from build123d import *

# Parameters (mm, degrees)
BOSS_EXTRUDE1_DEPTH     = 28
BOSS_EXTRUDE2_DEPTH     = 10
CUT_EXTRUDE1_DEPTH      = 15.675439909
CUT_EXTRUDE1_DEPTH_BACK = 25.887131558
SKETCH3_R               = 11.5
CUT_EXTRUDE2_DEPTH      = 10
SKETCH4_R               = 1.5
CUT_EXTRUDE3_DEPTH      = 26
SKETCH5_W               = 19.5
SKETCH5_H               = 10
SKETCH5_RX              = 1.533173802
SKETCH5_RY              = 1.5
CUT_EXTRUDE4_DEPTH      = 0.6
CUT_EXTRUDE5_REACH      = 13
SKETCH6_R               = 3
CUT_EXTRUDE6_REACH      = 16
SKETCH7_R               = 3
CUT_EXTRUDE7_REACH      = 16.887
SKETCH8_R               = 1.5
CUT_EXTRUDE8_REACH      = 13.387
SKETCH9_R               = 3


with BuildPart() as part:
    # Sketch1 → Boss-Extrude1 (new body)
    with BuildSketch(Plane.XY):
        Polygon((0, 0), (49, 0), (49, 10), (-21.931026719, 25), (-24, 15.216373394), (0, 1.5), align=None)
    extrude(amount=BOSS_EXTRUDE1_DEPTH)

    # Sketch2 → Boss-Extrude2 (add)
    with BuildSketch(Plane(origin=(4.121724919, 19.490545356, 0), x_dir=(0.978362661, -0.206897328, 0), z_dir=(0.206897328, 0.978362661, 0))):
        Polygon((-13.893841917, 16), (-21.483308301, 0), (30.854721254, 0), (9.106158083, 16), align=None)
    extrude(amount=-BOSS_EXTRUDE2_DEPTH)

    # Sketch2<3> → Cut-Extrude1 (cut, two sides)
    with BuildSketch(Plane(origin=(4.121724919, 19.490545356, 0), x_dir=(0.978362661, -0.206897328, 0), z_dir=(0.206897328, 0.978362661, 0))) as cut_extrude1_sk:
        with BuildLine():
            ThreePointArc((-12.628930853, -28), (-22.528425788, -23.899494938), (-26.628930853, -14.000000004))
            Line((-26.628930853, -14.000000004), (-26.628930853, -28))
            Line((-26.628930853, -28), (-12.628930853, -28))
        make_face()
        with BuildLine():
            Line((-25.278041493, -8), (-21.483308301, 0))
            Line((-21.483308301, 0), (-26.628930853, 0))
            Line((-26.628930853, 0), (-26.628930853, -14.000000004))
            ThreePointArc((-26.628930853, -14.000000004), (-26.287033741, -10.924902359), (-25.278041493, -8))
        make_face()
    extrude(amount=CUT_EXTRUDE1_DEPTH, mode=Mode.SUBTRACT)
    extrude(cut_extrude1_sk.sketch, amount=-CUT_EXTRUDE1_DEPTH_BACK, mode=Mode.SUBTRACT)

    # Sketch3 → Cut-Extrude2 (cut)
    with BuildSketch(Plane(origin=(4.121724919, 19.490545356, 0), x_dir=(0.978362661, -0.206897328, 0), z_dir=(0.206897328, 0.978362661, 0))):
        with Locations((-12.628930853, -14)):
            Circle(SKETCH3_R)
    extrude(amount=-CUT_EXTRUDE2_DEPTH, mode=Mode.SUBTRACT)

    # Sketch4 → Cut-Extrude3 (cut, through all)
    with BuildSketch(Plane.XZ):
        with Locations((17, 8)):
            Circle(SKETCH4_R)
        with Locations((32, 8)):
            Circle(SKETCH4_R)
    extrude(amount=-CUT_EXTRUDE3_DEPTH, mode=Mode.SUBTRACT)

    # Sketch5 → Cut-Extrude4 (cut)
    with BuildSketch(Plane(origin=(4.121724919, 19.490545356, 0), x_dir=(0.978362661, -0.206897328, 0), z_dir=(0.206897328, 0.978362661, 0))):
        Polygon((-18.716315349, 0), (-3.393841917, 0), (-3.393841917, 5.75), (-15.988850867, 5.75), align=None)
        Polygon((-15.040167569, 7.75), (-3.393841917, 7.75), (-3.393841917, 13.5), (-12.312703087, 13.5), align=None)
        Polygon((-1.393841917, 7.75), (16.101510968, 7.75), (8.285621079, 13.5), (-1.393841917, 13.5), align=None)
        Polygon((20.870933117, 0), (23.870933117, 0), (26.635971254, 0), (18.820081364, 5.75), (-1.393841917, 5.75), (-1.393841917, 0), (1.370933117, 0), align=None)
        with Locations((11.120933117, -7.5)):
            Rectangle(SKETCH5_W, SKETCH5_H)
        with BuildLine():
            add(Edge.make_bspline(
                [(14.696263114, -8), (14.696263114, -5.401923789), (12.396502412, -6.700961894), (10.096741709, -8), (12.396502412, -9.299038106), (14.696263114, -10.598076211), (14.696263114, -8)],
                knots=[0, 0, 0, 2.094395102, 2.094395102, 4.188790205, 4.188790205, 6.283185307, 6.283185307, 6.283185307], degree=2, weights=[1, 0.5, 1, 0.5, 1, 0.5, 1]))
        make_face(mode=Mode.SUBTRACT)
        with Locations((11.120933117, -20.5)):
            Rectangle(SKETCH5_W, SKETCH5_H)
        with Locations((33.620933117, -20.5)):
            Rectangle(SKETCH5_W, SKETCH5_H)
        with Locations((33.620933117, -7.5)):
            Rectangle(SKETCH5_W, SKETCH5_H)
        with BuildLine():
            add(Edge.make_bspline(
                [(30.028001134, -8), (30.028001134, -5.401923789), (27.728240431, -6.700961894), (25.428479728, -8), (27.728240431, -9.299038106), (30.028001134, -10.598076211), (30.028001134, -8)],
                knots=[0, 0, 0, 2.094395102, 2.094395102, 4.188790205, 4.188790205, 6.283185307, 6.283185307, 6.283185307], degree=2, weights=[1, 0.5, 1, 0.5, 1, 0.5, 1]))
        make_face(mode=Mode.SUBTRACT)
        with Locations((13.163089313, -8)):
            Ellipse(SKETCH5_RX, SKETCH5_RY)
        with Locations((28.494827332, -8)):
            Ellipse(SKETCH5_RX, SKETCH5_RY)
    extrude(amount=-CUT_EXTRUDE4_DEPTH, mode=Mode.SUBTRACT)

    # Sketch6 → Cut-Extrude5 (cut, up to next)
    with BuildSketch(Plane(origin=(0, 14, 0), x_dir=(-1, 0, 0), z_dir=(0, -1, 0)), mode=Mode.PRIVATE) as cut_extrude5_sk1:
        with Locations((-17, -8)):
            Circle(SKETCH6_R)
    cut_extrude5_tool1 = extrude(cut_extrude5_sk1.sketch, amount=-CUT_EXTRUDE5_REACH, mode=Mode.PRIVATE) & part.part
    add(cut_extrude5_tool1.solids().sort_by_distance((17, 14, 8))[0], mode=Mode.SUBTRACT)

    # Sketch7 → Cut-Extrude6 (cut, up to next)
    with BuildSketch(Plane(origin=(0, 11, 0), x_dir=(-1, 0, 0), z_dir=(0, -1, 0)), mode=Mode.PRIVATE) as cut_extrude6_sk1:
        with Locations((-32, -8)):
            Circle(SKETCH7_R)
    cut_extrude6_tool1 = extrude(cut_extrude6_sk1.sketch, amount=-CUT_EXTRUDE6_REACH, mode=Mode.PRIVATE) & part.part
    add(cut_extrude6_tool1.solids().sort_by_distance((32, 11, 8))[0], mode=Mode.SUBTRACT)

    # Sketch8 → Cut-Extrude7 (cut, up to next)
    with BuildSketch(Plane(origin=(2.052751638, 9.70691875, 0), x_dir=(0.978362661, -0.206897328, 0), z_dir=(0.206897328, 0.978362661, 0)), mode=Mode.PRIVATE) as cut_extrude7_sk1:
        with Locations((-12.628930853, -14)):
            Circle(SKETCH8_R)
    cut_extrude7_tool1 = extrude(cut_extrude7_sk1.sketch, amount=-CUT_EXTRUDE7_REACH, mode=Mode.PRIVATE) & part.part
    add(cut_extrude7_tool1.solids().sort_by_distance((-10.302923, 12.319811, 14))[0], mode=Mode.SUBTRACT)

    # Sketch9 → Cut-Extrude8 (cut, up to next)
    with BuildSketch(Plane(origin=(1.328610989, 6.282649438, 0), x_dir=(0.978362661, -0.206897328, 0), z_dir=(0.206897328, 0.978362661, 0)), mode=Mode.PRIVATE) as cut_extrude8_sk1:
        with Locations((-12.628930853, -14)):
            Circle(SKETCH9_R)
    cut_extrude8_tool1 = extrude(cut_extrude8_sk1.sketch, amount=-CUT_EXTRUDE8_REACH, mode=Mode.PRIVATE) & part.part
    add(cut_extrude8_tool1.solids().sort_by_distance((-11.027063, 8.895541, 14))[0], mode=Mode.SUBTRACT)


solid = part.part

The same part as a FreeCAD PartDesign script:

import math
import FreeCAD as App
import Part
import Sketcher
Q = App.Units.Quantity


def add_polygon(sketch, points):
    """Adds a closed chain of lines whose ends are joined by coincident constraints."""
    first, n = sketch.GeometryCount, len(points)
    for a, b in zip(points, points[1:] + points[:1]):
        sketch.addGeometry(Part.LineSegment(App.Vector(*a, 0), App.Vector(*b, 0)), False)
    for i in range(n):
        sketch.addConstraint(Sketcher.Constraint("Coincident", first + i, 2, first + (i + 1) % n, 1))

doc = App.newDocument("Part")
body = doc.addObject("PartDesign::Body", "Body")

# Sketch on XY plane
sketch1 = body.newObject("Sketcher::SketchObject", "Sketch")
sketch1.AttachmentSupport = (doc.getObject("XY_Plane"), [""])
sketch1.MapMode = "FlatFace"
add_polygon(sketch1, [(0, 0), (49, 0), (49, 10), (-21.9, 25), (-24, 15.2), (0, 1.5)])  # lines 0-5
sketch1.addConstraint([
    Sketcher.Constraint("Horizontal", 0),
    Sketcher.Constraint("Vertical", 1),
    Sketcher.Constraint("Vertical", 5),
    Sketcher.Constraint("Coincident", 5, 2, -1, 1),
    Sketcher.Constraint("Perpendicular", 2, 3),
    Sketcher.Constraint("DistanceX", 0, 1, 0, 2, Q("49 mm")),
    Sketcher.Constraint("DistanceY", 1, 1, 1, 2, Q("10 mm")),
    Sketcher.Constraint("Distance", 3, Q("10 mm")),
    Sketcher.Constraint("DistanceY", 5, 2, 5, 1, Q("1.5 mm")),
    Sketcher.Constraint("DistanceY", -1, 1, 2, 2, Q("25 mm")),
    Sketcher.Constraint("DistanceX", 3, 2, -1, 1, Q("24 mm")),
])
pad1 = body.newObject("PartDesign::Pad", "Pad")
pad1.Profile = sketch1
pad1.Length = 28

# Sketch on an angled plane
sketch2 = body.newObject("Sketcher::SketchObject", "Sketch001")
sketch2.Placement = App.Placement(App.Vector(4.121725, 19.490545, 0), App.Rotation(App.Vector(0.978362661, -0.206897328, 0), App.Vector(0, 0, -1.000000001), App.Vector(0.206897328, 0.978362661, 0), "ZXY"))
add_polygon(sketch2, [(-14, 16), (-21, 0), (31, 0), (9, 16)])  # lines 0-3
sketch2.addConstraint([
    Sketcher.Constraint("Horizontal", 1),
    Sketcher.Constraint("Horizontal", 3),
    Sketcher.Constraint("PointOnObject", 0, 2, -1),
    Sketcher.Constraint("DistanceX", 3, 2, 3, 1, Q("23 mm")),
    Sketcher.Constraint("Distance", 2, Q("27 mm")),
    Sketcher.Constraint("DistanceY", -1, 1, 2, 2, Q("16 mm")),
    Sketcher.Constraint("DistanceX", 1, 1, 1, 2, Q("52.33803 mm")),
    Sketcher.Constraint("DistanceX", 0, 2, -1, 1, Q("21.483308 mm")),
])
pad2 = body.newObject("PartDesign::Pad", "Pad001")
pad2.Profile = sketch2
pad2.Length = 10
pad2.Reversed = True

# Sketch on an angled plane
sketch3 = body.newObject("Sketcher::SketchObject", "Sketch002")
sketch3.Placement = App.Placement(App.Vector(4.121725, 19.490545, 0), App.Rotation(App.Vector(0.978362661, -0.206897328, 0), App.Vector(0, 0, -1.000000001), App.Vector(0.206897328, 0.978362661, 0), "ZXY"))
sketch3.addGeometry([
    Part.ArcOfCircle(Part.Circle(App.Vector(-13, -14, 0), App.Vector(0, 0, 1), 14), math.radians(-180), math.radians(-90)),  # 0
    Part.LineSegment(App.Vector(-27, -14, 0), App.Vector(-27, -28, 0)),  # 1
    Part.LineSegment(App.Vector(-27, -28, 0), App.Vector(-13, -28, 0)),  # 2
    Part.LineSegment(App.Vector(-25, -8, 0), App.Vector(-21, 0, 0)),  # 3
    Part.LineSegment(App.Vector(-21, 0, 0), App.Vector(-27, 0, 0)),  # 4
    Part.LineSegment(App.Vector(-27, 0, 0), App.Vector(-27, -14, 0)),  # 5
    Part.ArcOfCircle(Part.Circle(App.Vector(-13, -14, 0), App.Vector(0, 0, 1), 14), math.radians(155), math.radians(180)),  # 6
], False)
sketch3.addConstraint([
    Sketcher.Constraint("Tangent", 0, 1, 1, 1),
    Sketcher.Constraint("Coincident", 1, 2, 2, 1),
    Sketcher.Constraint("Tangent", 2, 2, 0, 2),
    Sketcher.Constraint("Coincident", 3, 2, 4, 1),
    Sketcher.Constraint("Coincident", 4, 2, 5, 1),
    Sketcher.Constraint("Tangent", 5, 2, 6, 2),
    Sketcher.Constraint("Tangent", 6, 1, 3, 1),
    Sketcher.Constraint("Vertical", 1),
    Sketcher.Constraint("Horizontal", 2),
    Sketcher.Constraint("Horizontal", 4),
    Sketcher.Constraint("Vertical", 5),
    Sketcher.Constraint("Coincident", 6, 3, 0, 3),
    Sketcher.Constraint("Equal", 0, 6),
    Sketcher.Constraint("PointOnObject", 3, 2, -1),
    Sketcher.Constraint("Equal", 1, 5),
    Sketcher.Constraint("Radius", 0, Q("14 mm")),
    Sketcher.Constraint("DistanceY", 6, 1, -1, 1, Q("8 mm")),
    Sketcher.Constraint("DistanceX", 0, 3, -1, 1, Q("12.628931 mm")),
])
pocket1 = body.newObject("PartDesign::Pocket", "Pocket")
pocket1.Profile = sketch3
pocket1.Type = "ThroughAll"
pocket1.Midplane = True

# Sketch on an angled plane
sketch4 = body.newObject("Sketcher::SketchObject", "Sketch003")
sketch4.Placement = App.Placement(App.Vector(4.121725, 19.490545, 0), App.Rotation(App.Vector(0.978362661, -0.206897328, 0), App.Vector(0, 0, -1.000000001), App.Vector(0.206897328, 0.978362661, 0), "ZXY"))
sketch4.addGeometry(Part.Circle(App.Vector(-13, -14, 0), App.Vector(0, 0, 1), 12), False)
sketch4.addConstraint([
    Sketcher.Constraint("Diameter", 0, Q("23 mm")),
    Sketcher.Constraint("DistanceY", 0, 3, -1, 1, Q("14 mm")),
    Sketcher.Constraint("DistanceX", 0, 3, -1, 1, Q("12.628931 mm")),
])
pocket2 = body.newObject("PartDesign::Pocket", "Pocket001")
pocket2.Profile = sketch4
pocket2.Length = 10

# Sketch on XZ plane
sketch5 = body.newObject("Sketcher::SketchObject", "Sketch004")
sketch5.AttachmentSupport = (doc.getObject("XZ_Plane"), [""])
sketch5.MapMode = "FlatFace"
sketch5.addGeometry([
    Part.Circle(App.Vector(17, 8, 0), App.Vector(0, 0, 1), 1.5),
    Part.Circle(App.Vector(32, 8, 0), App.Vector(0, 0, 1), 1.5),
], False)
sketch5.addConstraint([
    Sketcher.Constraint("Equal", 0, 1),
    Sketcher.Constraint("Horizontal", 0, 3, 1, 3),
    Sketcher.Constraint("Diameter", 0, Q("3 mm")),
    Sketcher.Constraint("DistanceX", -1, 1, 0, 3, Q("17 mm")),
    Sketcher.Constraint("DistanceY", -1, 1, 0, 3, Q("8 mm")),
    Sketcher.Constraint("DistanceX", -1, 1, 1, 3, Q("32 mm")),
])
pocket3 = body.newObject("PartDesign::Pocket", "Pocket002")
pocket3.Profile = sketch5
pocket3.Type = "ThroughAll"

# Sketch on an angled plane
sketch6 = body.newObject("Sketcher::SketchObject", "Sketch005")
sketch6.Placement = App.Placement(App.Vector(4.121725, 19.490545, 0), App.Rotation(App.Vector(0.978362661, -0.206897328, 0), App.Vector(0, 0, -1.000000001), App.Vector(0.206897328, 0.978362661, 0), "ZXY"))
add_polygon(sketch6, [(-19, 0), (-3, 0), (-3, 6), (-16, 6)])  # lines 0-3
add_polygon(sketch6, [(-15, 8), (-3, 8), (-3, 14), (-12, 14)])  # lines 4-7
add_polygon(sketch6, [(-1, 8), (16, 8), (8, 14), (-1, 14)])  # lines 8-11
add_polygon(sketch6, [(27, 0), (19, 6), (-1, 6), (-1, 0)])  # lines 12-15
add_polygon(sketch6, [(1, -3), (1, -13), (21, -13), (21, -3)])  # lines 16-19
add_polygon(sketch6, [(1, -16), (1, -26), (21, -26), (21, -16)])  # lines 20-23
add_polygon(sketch6, [(24, -16), (24, -26), (43, -26), (43, -16)])  # lines 24-27
add_polygon(sketch6, [(24, -3), (24, -13), (43, -13), (43, -3)])  # lines 28-31
sketch6.addConstraint([
    Sketcher.Constraint("Horizontal", 0),
    Sketcher.Constraint("Vertical", 1),
    Sketcher.Constraint("Horizontal", 2),
    Sketcher.Constraint("Horizontal", 4),
    Sketcher.Constraint("Vertical", 5),
    Sketcher.Constraint("Horizontal", 6),
    Sketcher.Constraint("Horizontal", 8),
    Sketcher.Constraint("Horizontal", 10),
    Sketcher.Constraint("Vertical", 11),
    Sketcher.Constraint("Horizontal", 13),
    Sketcher.Constraint("Vertical", 14),
    Sketcher.Constraint("Horizontal", 15),
    Sketcher.Constraint("Vertical", 16),
    Sketcher.Constraint("Horizontal", 17),
    Sketcher.Constraint("Vertical", 18),
    Sketcher.Constraint("Horizontal", 19),
    Sketcher.Constraint("Vertical", 20),
    Sketcher.Constraint("Horizontal", 21),
    Sketcher.Constraint("Vertical", 22),
    Sketcher.Constraint("Horizontal", 23),
    Sketcher.Constraint("Vertical", 24),
    Sketcher.Constraint("Horizontal", 25),
    Sketcher.Constraint("Vertical", 26),
    Sketcher.Constraint("Horizontal", 27),
    Sketcher.Constraint("Vertical", 28),
    Sketcher.Constraint("Horizontal", 29),
    Sketcher.Constraint("Vertical", 30),
    Sketcher.Constraint("Horizontal", 31),
    Sketcher.Constraint("PointOnObject", 0, 2, -1),
    Sketcher.Constraint("PointOnObject", 14, 2, -1),
    Sketcher.Constraint("Parallel", 3, 7),
    Sketcher.Constraint("Parallel", 9, 12),
    Sketcher.Constraint("Horizontal", 7, 2, 8, 2),
    Sketcher.Constraint("Horizontal", 6, 2, 9, 2),
    Sketcher.Constraint("Horizontal", 2, 2, 12, 2),
    Sketcher.Constraint("Horizontal", 21, 2, 24, 2),
    Sketcher.Constraint("Horizontal", 23, 2, 26, 2),
    Sketcher.Constraint("Horizontal", 17, 2, 28, 2),
    Sketcher.Constraint("Horizontal", 19, 2, 30, 2),
    Sketcher.Constraint("Vertical", 1, 2, 4, 2),
    Sketcher.Constraint("Vertical", 11, 2, 13, 2),
    Sketcher.Constraint("Vertical", 19, 2, 20, 2),
    Sketcher.Constraint("Vertical", 18, 2, 21, 2),
    Sketcher.Constraint("Vertical", 27, 2, 28, 2),
    Sketcher.Constraint("Vertical", 26, 2, 29, 2),
    Sketcher.Constraint("Equal", 23, 25),
    Sketcher.Constraint("Equal", 1, 5),
    Sketcher.Constraint("Equal", 18, 20),
    Sketcher.Constraint("DistanceY", 16, 2, 16, 1, Q("10 mm")),
    Sketcher.Constraint("DistanceX", 17, 1, 17, 2, Q("19.5 mm")),
    Sketcher.Constraint("DistanceY", 1, 2, 4, 2, Q("2 mm")),
    Sketcher.Constraint("DistanceX", 5, 2, 10, 2, Q("2 mm")),
    Sketcher.Constraint("DistanceY", 18, 2, 9, 2, Q("16 mm")),
    Sketcher.Constraint("DistanceY", 20, 2, 16, 2, Q("13 mm")),
    Sketcher.Constraint("DistanceX", 21, 2, 24, 2, Q("3 mm")),
    Sketcher.Constraint("DistanceY", 1, 1, 1, 2, Q("5.75 mm")),
    Sketcher.Constraint("DistanceX", 2, 2, 2, 1, Q("12.595009 mm")),
    Sketcher.Constraint("DistanceX", 6, 2, 6, 1, Q("8.918861 mm")),
    Sketcher.Constraint("DistanceX", 0, 1, 0, 2, Q("15.322473 mm")),
    Sketcher.Constraint("DistanceX", 8, 1, 8, 2, Q("17.495353 mm")),
    Sketcher.Constraint("DistanceX", 10, 2, 10, 1, Q("9.679463 mm")),
    Sketcher.Constraint("DistanceX", 13, 2, 13, 1, Q("20.213923 mm")),
    Sketcher.Constraint("DistanceX", 0, 2, -1, 1, Q("3.393842 mm")),
    Sketcher.Constraint("DistanceX", 17, 2, 15, 2, Q("5.765038 mm")),
])
pocket4 = body.newObject("PartDesign::Pocket", "Pocket003")
pocket4.Profile = sketch6
pocket4.Length = 0.6

# Sketch on XZ plane
sketch7 = body.newObject("Sketcher::SketchObject", "Sketch006")
sketch7.AttachmentSupport = (doc.getObject("XZ_Plane"), [""])
sketch7.MapMode = "FlatFace"
sketch7.AttachmentOffset = App.Placement(App.Vector(0, 0, -14), App.Rotation())
sketch7.addGeometry(Part.Circle(App.Vector(17, 8, 0), App.Vector(0, 0, 1), 3), False)
sketch7.addConstraint([
    Sketcher.Constraint("Diameter", 0, Q("6 mm")),
    Sketcher.Constraint("DistanceX", -1, 1, 0, 3, Q("17 mm")),
    Sketcher.Constraint("DistanceY", -1, 1, 0, 3, Q("8 mm")),
])
pocket5 = body.newObject("PartDesign::Pocket", "Pocket004")
pocket5.Profile = sketch7
pocket5.Length = 2.788287

# Sketch on XZ plane
sketch8 = body.newObject("Sketcher::SketchObject", "Sketch007")
sketch8.AttachmentSupport = (doc.getObject("XZ_Plane"), [""])
sketch8.MapMode = "FlatFace"
sketch8.AttachmentOffset = App.Placement(App.Vector(0, 0, -11), App.Rotation())
sketch8.addGeometry(Part.Circle(App.Vector(32, 8, 0), App.Vector(0, 0, 1), 3), False)
sketch8.addConstraint([
    Sketcher.Constraint("Diameter", 0, Q("6 mm")),
    Sketcher.Constraint("DistanceX", -1, 1, 0, 3, Q("32 mm")),
    Sketcher.Constraint("DistanceY", -1, 1, 0, 3, Q("8 mm")),
])
pocket6 = body.newObject("PartDesign::Pocket", "Pocket005")
pocket6.Profile = sketch8
pocket6.Length = 2.616191

# Sketch on an angled plane
sketch9 = body.newObject("Sketcher::SketchObject", "Sketch008")
sketch9.Placement = App.Placement(App.Vector(2.052752, 9.706919, 0), App.Rotation(App.Vector(0.978362661, -0.206897328, 0), App.Vector(0, 0, -1.000000001), App.Vector(0.206897328, 0.978362661, 0), "ZXY"))
sketch9.addGeometry(Part.Circle(App.Vector(-12.6, -14, 0), App.Vector(0, 0, 1), 1.5), False)
sketch9.addConstraint([
    Sketcher.Constraint("Diameter", 0, Q("3 mm")),
    Sketcher.Constraint("DistanceY", 0, 3, -1, 1, Q("14 mm")),
    Sketcher.Constraint("DistanceX", 0, 3, -1, 1, Q("12.628931 mm")),
])
pocket7 = body.newObject("PartDesign::Pocket", "Pocket006")
pocket7.Profile = sketch9
pocket7.Type = "UpToFirst"

# Sketch on an angled plane
sketch10 = body.newObject("Sketcher::SketchObject", "Sketch009")
sketch10.Placement = App.Placement(App.Vector(1.328611, 6.282649, 0), App.Rotation(App.Vector(0.978362661, -0.206897328, 0), App.Vector(0, 0, -1.000000001), App.Vector(0.206897328, 0.978362661, 0), "ZXY"))
sketch10.addGeometry(Part.Circle(App.Vector(-12.6, -14, 0), App.Vector(0, 0, 1), 3), False)
sketch10.addConstraint([
    Sketcher.Constraint("Diameter", 0, Q("6 mm")),
    Sketcher.Constraint("DistanceY", 0, 3, -1, 1, Q("14 mm")),
    Sketcher.Constraint("DistanceX", 0, 3, -1, 1, Q("12.628931 mm")),
])
pocket8 = body.newObject("PartDesign::Pocket", "Pocket007")
pocket8.Profile = sketch10
pocket8.Length = 1.960737

doc.recompute()
